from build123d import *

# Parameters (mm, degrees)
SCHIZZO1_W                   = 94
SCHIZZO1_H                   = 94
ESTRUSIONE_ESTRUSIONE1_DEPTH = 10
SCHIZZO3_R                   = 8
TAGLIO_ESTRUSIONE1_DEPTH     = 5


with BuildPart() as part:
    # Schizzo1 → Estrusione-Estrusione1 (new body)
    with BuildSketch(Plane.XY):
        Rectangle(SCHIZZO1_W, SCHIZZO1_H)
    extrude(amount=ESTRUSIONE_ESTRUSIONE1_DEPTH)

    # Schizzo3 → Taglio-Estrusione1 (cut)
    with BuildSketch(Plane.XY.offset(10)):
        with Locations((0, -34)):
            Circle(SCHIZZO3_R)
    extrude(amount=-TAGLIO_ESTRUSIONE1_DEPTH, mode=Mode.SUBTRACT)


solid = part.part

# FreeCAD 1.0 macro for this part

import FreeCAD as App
import Part
import Sketcher
from FreeCAD import Vector
Q = App.Units.Quantity


def add_polygon(sketch, points):
    """Adds a closed chain of lines whose ends are joined by coincident constraints."""
    first, n = sketch.GeometryCount, len(points)
    for a, b in zip(points, points[1:] + points[:1]):
        sketch.addGeometry(Part.LineSegment(App.Vector(*a, 0), App.Vector(*b, 0)), False)
    for i in range(n):
        sketch.addConstraint(Sketcher.Constraint("Coincident", first + i, 2, first + (i + 1) % n, 1))

doc = App.newDocument("Part")
body = doc.addObject("PartDesign::Body", "Body")

# Sketch on XY plane
sketch1 = body.newObject("Sketcher::SketchObject", "Sketch")
sketch1.AttachmentSupport = (doc.getObject("XY_Plane"), [""])
sketch1.MapMode = "FlatFace"
add_polygon(sketch1, [(-47, 47), (-47, -47), (47, -47), (47, 47)])  # lines 0-3
sketch1.addConstraint(Sketcher.Constraint("Vertical", 0))
sketch1.addConstraint(Sketcher.Constraint("Horizontal", 1))
sketch1.addConstraint(Sketcher.Constraint("Vertical", 2))
sketch1.addConstraint(Sketcher.Constraint("Horizontal", 3))
sketch1.addConstraint(Sketcher.Constraint("Symmetric", 0, 2, 2, 2, -1, 1))
sketch1.addConstraint(Sketcher.Constraint("Equal", 3, 0))
sketch1.addConstraint(Sketcher.Constraint("DistanceX", 1, 1, 1, 2, Q("94 mm")))
pad1 = body.newObject("PartDesign::Pad", "Pad")
pad1.Profile = sketch1
pad1.Length = 10

# Sketch on XY plane
sketch2 = body.newObject("Sketcher::SketchObject", "Sketch001")
sketch2.AttachmentSupport = (doc.getObject("XY_Plane"), [""])
sketch2.MapMode = "FlatFace"
sketch2.AttachmentOffset = App.Placement(Vector(0, 0, 10), App.Rotation())
sketch2.addGeometry(Part.Circle(Vector(0, -34, 0), Vector(0, 0, 1), 8), False)
sketch2.addConstraint(Sketcher.Constraint("PointOnObject", 0, 3, -2))
sketch2.addConstraint(Sketcher.Constraint("Diameter", 0, Q("16 mm")))
sketch2.addConstraint(Sketcher.Constraint("DistanceY", 0, 3, -1, 1, Q("34 mm")))
pocket1 = body.newObject("PartDesign::Pocket", "Pocket")
pocket1.Profile = sketch2
pocket1.Length = 5

doc.recompute()
